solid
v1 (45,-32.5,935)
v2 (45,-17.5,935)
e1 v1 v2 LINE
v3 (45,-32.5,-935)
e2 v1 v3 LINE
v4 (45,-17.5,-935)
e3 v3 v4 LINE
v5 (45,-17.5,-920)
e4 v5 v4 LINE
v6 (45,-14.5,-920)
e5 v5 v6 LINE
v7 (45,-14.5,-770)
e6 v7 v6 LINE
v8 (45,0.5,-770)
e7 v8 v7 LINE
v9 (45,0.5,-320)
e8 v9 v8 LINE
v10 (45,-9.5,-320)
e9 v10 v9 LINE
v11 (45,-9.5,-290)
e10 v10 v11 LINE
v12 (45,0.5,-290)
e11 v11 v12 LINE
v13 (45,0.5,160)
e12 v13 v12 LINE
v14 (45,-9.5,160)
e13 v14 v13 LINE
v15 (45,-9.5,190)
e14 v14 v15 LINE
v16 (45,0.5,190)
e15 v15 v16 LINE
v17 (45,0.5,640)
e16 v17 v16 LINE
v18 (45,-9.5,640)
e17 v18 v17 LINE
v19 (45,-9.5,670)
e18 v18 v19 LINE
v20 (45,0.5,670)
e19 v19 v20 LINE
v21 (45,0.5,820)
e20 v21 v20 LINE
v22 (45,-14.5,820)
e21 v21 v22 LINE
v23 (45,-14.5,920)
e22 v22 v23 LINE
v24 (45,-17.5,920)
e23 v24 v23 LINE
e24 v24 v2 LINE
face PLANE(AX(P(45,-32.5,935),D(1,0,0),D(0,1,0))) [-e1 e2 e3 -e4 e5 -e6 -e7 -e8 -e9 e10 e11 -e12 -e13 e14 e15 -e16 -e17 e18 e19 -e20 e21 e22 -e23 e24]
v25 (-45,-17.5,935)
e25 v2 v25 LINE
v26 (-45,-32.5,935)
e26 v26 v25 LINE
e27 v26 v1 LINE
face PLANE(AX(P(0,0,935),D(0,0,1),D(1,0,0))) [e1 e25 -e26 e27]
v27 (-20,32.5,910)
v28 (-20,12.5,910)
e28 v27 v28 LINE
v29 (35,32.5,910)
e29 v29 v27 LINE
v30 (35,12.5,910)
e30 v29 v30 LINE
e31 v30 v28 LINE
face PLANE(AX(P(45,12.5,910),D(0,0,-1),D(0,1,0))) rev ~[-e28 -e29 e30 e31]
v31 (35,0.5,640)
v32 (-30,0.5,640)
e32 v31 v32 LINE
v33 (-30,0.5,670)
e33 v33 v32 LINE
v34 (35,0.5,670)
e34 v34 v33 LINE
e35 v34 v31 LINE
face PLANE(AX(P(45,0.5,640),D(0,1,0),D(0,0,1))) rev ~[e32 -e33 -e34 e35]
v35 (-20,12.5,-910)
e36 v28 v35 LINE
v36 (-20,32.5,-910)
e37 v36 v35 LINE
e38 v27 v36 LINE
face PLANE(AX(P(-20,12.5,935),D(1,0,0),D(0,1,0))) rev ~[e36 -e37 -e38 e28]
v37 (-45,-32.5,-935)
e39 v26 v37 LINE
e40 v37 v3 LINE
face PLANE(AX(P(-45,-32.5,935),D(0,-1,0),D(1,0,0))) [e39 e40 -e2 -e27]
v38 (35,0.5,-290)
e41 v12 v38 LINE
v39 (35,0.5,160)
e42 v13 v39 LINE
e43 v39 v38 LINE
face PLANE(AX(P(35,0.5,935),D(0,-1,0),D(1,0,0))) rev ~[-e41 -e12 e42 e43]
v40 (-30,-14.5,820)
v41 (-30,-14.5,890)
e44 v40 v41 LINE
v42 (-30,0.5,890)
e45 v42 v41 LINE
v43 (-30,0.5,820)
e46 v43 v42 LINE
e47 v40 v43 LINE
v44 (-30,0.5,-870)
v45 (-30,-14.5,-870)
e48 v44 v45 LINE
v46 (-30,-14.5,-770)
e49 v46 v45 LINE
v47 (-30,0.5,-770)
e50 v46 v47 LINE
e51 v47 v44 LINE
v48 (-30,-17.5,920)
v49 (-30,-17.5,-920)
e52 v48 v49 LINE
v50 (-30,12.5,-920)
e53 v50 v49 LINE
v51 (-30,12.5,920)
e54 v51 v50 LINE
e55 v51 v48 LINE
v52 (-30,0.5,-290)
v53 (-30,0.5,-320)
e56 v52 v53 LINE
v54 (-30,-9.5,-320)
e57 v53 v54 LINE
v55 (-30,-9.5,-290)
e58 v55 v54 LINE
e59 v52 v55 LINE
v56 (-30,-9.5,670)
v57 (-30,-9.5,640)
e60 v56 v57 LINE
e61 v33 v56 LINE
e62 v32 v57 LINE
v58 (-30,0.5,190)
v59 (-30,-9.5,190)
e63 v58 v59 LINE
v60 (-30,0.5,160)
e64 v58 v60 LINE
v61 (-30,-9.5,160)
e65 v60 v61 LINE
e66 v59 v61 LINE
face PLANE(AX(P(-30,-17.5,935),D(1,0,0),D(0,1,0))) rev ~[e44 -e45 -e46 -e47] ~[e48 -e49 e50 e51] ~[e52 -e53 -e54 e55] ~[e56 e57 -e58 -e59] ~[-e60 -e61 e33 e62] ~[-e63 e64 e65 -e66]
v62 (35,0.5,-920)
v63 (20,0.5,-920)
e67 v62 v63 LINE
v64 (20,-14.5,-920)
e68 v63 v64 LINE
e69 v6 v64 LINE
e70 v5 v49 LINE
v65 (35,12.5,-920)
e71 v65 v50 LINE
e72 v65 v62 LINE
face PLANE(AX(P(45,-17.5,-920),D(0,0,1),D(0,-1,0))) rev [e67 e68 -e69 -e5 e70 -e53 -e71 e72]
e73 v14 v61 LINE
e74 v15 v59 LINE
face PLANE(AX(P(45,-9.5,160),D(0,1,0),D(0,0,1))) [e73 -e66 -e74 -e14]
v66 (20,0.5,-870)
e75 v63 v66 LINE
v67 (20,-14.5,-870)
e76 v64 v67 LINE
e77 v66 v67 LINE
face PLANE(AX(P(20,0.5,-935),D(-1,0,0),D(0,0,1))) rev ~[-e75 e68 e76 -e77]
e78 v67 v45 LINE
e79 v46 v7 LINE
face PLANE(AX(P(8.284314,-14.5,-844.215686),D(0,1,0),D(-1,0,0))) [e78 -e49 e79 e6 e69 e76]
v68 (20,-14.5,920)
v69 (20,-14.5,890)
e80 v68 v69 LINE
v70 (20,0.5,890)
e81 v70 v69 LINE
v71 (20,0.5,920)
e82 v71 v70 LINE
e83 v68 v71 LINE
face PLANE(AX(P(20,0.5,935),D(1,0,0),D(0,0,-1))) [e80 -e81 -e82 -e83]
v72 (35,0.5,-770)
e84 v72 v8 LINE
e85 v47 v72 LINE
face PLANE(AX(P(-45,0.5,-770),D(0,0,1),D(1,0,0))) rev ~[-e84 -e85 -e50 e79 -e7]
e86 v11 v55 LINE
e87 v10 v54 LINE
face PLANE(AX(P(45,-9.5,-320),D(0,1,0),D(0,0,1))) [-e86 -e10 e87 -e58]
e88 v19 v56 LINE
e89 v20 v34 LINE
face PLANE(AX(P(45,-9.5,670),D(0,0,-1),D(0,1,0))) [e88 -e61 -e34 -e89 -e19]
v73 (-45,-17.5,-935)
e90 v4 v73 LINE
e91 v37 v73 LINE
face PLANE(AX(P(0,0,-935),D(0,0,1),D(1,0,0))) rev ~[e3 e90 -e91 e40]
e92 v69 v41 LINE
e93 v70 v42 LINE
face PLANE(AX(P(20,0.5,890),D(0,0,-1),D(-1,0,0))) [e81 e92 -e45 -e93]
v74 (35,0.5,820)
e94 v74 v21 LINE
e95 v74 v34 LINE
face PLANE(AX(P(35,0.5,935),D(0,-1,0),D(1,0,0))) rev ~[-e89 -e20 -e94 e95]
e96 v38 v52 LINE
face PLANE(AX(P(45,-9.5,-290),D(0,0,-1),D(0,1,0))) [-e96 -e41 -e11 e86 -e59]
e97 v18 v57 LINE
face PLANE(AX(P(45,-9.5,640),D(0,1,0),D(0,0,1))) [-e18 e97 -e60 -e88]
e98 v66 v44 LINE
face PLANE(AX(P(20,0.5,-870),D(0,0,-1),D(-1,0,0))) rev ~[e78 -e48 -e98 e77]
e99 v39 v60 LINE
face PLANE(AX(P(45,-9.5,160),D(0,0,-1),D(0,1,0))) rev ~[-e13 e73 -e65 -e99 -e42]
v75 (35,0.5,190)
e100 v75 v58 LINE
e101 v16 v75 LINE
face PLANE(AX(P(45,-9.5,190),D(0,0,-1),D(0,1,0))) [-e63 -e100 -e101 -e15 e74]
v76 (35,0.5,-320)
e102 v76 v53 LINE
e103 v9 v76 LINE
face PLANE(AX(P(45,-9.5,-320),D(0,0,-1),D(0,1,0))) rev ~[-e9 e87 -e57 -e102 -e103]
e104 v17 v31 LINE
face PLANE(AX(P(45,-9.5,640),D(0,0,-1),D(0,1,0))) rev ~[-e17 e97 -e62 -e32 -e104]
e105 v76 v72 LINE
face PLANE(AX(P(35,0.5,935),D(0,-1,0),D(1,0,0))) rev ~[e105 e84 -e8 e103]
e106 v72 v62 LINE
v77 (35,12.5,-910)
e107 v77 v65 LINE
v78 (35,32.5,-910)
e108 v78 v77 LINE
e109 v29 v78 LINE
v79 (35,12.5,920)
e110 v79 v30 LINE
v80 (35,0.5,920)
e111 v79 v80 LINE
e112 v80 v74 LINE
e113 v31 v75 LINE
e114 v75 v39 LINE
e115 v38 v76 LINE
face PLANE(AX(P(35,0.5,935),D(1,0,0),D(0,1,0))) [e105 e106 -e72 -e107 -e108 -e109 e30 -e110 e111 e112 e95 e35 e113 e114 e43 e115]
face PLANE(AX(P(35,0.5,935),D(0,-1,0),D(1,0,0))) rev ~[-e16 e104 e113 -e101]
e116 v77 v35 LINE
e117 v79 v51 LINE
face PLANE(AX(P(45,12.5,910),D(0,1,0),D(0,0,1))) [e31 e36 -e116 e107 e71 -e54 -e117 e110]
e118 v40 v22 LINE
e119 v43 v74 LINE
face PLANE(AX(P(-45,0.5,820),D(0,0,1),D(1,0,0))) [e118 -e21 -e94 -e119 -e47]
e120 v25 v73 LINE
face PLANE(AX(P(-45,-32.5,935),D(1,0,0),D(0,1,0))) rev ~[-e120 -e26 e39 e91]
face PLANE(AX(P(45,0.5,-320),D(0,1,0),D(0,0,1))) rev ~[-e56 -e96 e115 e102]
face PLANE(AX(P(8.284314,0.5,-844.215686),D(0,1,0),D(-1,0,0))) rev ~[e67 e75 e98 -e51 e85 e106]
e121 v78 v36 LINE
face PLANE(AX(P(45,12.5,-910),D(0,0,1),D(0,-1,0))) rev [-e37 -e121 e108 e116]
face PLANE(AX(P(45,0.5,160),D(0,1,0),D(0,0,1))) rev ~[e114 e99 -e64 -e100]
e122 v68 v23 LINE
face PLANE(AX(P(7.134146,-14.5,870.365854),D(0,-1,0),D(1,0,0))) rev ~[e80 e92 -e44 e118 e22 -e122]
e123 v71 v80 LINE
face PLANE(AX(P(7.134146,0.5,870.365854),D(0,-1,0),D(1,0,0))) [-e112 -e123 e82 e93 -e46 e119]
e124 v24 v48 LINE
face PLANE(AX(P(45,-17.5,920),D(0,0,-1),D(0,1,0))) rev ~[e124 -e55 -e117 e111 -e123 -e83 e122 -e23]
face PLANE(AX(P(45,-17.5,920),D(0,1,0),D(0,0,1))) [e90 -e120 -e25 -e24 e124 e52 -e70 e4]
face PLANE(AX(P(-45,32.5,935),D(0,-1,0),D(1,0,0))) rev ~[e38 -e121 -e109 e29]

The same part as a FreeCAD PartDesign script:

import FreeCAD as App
import Part
import Sketcher
Q = App.Units.Quantity


def add_polygon(sketch, points):
    """Adds a closed chain of lines whose ends are joined by coincident constraints."""
    first, n = sketch.GeometryCount, len(points)
    for a, b in zip(points, points[1:] + points[:1]):
        sketch.addGeometry(Part.LineSegment(App.Vector(*a, 0), App.Vector(*b, 0)), False)
    for i in range(n):
        sketch.addConstraint(Sketcher.Constraint("Coincident", first + i, 2, first + (i + 1) % n, 1))

doc = App.newDocument("Part")
body = doc.addObject("PartDesign::Body", "Body")

# Sketch on XY plane
sketch1 = body.newObject("Sketcher::SketchObject", "Sketch")
sketch1.AttachmentSupport = (doc.getObject("XY_Plane"), [""])
sketch1.MapMode = "FlatFace"
sketch1.AttachmentOffset = App.Placement(App.Vector(0, 0, 935), App.Rotation())
add_polygon(sketch1, [(-45, 32), (-45, -32), (45, -32), (45, 32)])  # lines 0-3
sketch1.addConstraint([
    Sketcher.Constraint("Vertical", 0),
    Sketcher.Constraint("Horizontal", 1),
    Sketcher.Constraint("Vertical", 2),
    Sketcher.Constraint("Horizontal", 3),
    Sketcher.Constraint("Symmetric", 0, 2, 2, 2, -1, 1),
    Sketcher.Constraint("DistanceX", 1, 1, 1, 2, Q("90 mm")),
    Sketcher.Constraint("DistanceY", 0, 2, 0, 1, Q("65 mm")),
])
pad1 = body.newObject("PartDesign::Pad", "Pad")
pad1.Profile = sketch1
pad1.Length = 1870
pad1.Reversed = True

# Sketch on XZ plane
sketch2 = body.newObject("Sketcher::SketchObject", "Sketch001")
sketch2.AttachmentSupport = (doc.getObject("XZ_Plane"), [""])
sketch2.MapMode = "FlatFace"
sketch2.AttachmentOffset = App.Placement(App.Vector(0, 0, -0.5), App.Rotation())
add_polygon(sketch2, [(20, 935), (45, 935), (45, 820), (-45, 820), (-45, 890), (20, 890)])  # lines 0-5
sketch2.addConstraint([
    Sketcher.Constraint("Horizontal", 0),
    Sketcher.Constraint("Vertical", 1),
    Sketcher.Constraint("Horizontal", 2),
    Sketcher.Constraint("Vertical", 3),
    Sketcher.Constraint("Horizontal", 4),
    Sketcher.Constraint("Vertical", 5),
    Sketcher.Constraint("DistanceX", 0, 1, 0, 2, Q("25 mm")),
    Sketcher.Constraint("DistanceX", 2, 2, 2, 1, Q("90 mm")),
    Sketcher.Constraint("DistanceY", 1, 2, 1, 1, Q("115 mm")),
    Sketcher.Constraint("DistanceY", 3, 1, 3, 2, Q("70 mm")),
    Sketcher.Constraint("DistanceX", -1, 1, 0, 2, Q("45 mm")),
    Sketcher.Constraint("DistanceY", -1, 1, 0, 2, Q("935 mm")),
])
pocket1 = body.newObject("PartDesign::Pocket", "Pocket")
pocket1.Profile = sketch2
pocket1.Length = 15
pocket1.Reversed = True

# Sketch on XZ plane
sketch3 = body.newObject("Sketcher::SketchObject", "Sketch002")
sketch3.AttachmentSupport = (doc.getObject("XZ_Plane"), [""])
sketch3.MapMode = "FlatFace"
sketch3.AttachmentOffset = App.Placement(App.Vector(0, 0, -0.5), App.Rotation())
add_polygon(sketch3, [(-45, -770), (45, -770), (45, -935), (20, -935), (20, -870), (-45, -870)])  # lines 0-5
sketch3.addConstraint([
    Sketcher.Constraint("Horizontal", 0),
    Sketcher.Constraint("Vertical", 1),
    Sketcher.Constraint("Horizontal", 2),
    Sketcher.Constraint("Vertical", 3),
    Sketcher.Constraint("Horizontal", 4),
    Sketcher.Constraint("Vertical", 5),
    Sketcher.Constraint("Equal", 4, 3),
    Sketcher.Constraint("DistanceX", 0, 1, 0, 2, Q("90 mm")),
    Sketcher.Constraint("DistanceX", 2, 2, 2, 1, Q("25 mm")),
    Sketcher.Constraint("DistanceY", 1, 2, 1, 1, Q("165 mm")),
    Sketcher.Constraint("DistanceX", -1, 1, 0, 2, Q("45 mm")),
    Sketcher.Constraint("DistanceY", 0, 2, -1, 1, Q("770 mm")),
])
pocket2 = body.newObject("PartDesign::Pocket", "Pocket001")
pocket2.Profile = sketch3
pocket2.Length = 15
pocket2.Reversed = True

# Sketch on YZ plane
sketch4 = body.newObject("Sketcher::SketchObject", "Sketch003")
sketch4.AttachmentSupport = (doc.getObject("YZ_Plane"), [""])
sketch4.MapMode = "FlatFace"
sketch4.AttachmentOffset = App.Placement(App.Vector(0, 0, 45), App.Rotation())
add_polygon(sketch4, [(-10, -290), (-10, -320), (0, -320), (0, -290)])  # lines 0-3
add_polygon(sketch4, [(-10, 190), (-10, 160), (0, 160), (0, 190)])  # lines 4-7
add_polygon(sketch4, [(-10, 670), (-10, 640), (0, 640), (0, 670)])  # lines 8-11
sketch4.addConstraint([
    Sketcher.Constraint("Vertical", 0),
    Sketcher.Constraint("Horizontal", 1),
    Sketcher.Constraint("Vertical", 2),
    Sketcher.Constraint("Horizontal", 3),
    Sketcher.Constraint("Vertical", 4),
    Sketcher.Constraint("Horizontal", 5),
    Sketcher.Constraint("Vertical", 6),
    Sketcher.Constraint("Horizontal", 7),
    Sketcher.Constraint("Vertical", 8),
    Sketcher.Constraint("Horizontal", 9),
    Sketcher.Constraint("Vertical", 10),
    Sketcher.Constraint("Horizontal", 11),
    Sketcher.Constraint("Vertical", 3, 2, 4, 2),
    Sketcher.Constraint("Vertical", 2, 2, 5, 2),
    Sketcher.Constraint("Vertical", 7, 2, 8, 2),
    Sketcher.Constraint("Vertical", 6, 2, 9, 2),
    Sketcher.Constraint("Equal", 2, 4),
    Sketcher.Constraint("Equal", 6, 8),
    Sketcher.Constraint("DistanceX", 1, 1, 1, 2, Q("10 mm")),
    Sketcher.Constraint("DistanceY", 0, 2, 0, 1, Q("30 mm")),
    Sketcher.Constraint("DistanceY", 0, 2, -1, 1, Q("320 mm")),
    Sketcher.Constraint("DistanceY", -1, 1, 4, 2, Q("160 mm")),
    Sketcher.Constraint("DistanceY", -1, 1, 8, 2, Q("640 mm")),
    Sketcher.Constraint("DistanceX", 0, 2, -1, 1, Q("9.5 mm")),
])
pocket3 = body.newObject("PartDesign::Pocket", "Pocket002")
pocket3.Profile = sketch4
pocket3.Type = "ThroughAll"

# Sketch on YZ plane
sketch5 = body.newObject("Sketcher::SketchObject", "Sketch004")
sketch5.AttachmentSupport = (doc.getObject("YZ_Plane"), [""])
sketch5.MapMode = "FlatFace"
sketch5.AttachmentOffset = App.Placement(App.Vector(0, 0, 45), App.Rotation())
add_polygon(sketch5, [(12, 935), (12, 910), (32, 910), (32, 935)])  # lines 0-3
sketch5.addConstraint([
    Sketcher.Constraint("Vertical", 0),
    Sketcher.Constraint("Horizontal", 1),
    Sketcher.Constraint("Vertical", 2),
    Sketcher.Constraint("Horizontal", 3),
    Sketcher.Constraint("DistanceX", 1, 1, 1, 2, Q("20 mm")),
    Sketcher.Constraint("DistanceY", 0, 2, 0, 1, Q("25 mm")),
    Sketcher.Constraint("DistanceY", -1, 1, 0, 2, Q("910 mm")),
    Sketcher.Constraint("DistanceX", -1, 1, 0, 2, Q("12.5 mm")),
])
pocket4 = body.newObject("PartDesign::Pocket", "Pocket003")
pocket4.Profile = sketch5
pocket4.Type = "ThroughAll"

# Sketch on YZ plane
sketch6 = body.newObject("Sketcher::SketchObject", "Sketch005")
sketch6.AttachmentSupport = (doc.getObject("YZ_Plane"), [""])
sketch6.MapMode = "FlatFace"
sketch6.AttachmentOffset = App.Placement(App.Vector(0, 0, 45), App.Rotation())
add_polygon(sketch6, [(-18, 935), (-18, 920), (32, 920), (32, 935)])  # lines 0-3
sketch6.addConstraint([
    Sketcher.Constraint("Vertical", 0),
    Sketcher.Constraint("Horizontal", 1),
    Sketcher.Constraint("Vertical", 2),
    Sketcher.Constraint("Horizontal", 3),
    Sketcher.Constraint("DistanceX", 1, 1, 1, 2, Q("50 mm")),
    Sketcher.Constraint("DistanceY", 0, 2, 0, 1, Q("15 mm")),
    Sketcher.Constraint("DistanceY", -1, 1, 0, 2, Q("920 mm")),
    Sketcher.Constraint("DistanceX", 0, 2, -1, 1, Q("17.5 mm")),
])
pocket5 = body.newObject("PartDesign::Pocket", "Pocket004")
pocket5.Profile = sketch6
pocket5.Type = "ThroughAll"
doc.recompute()

mirrored = body.newObject("PartDesign::Mirrored", "Mirrored")
mirrored.Originals = [pocket4, pocket5]
mirrored.MirrorPlane = (doc.getObject("XY_Plane"), [""])
body.Tip = mirrored

# Sketch on XY plane
sketch7 = body.newObject("Sketcher::SketchObject", "Sketch006")
sketch7.AttachmentSupport = (doc.getObject("XY_Plane"), [""])
sketch7.MapMode = "FlatFace"
sketch7.AttachmentOffset = App.Placement(App.Vector(0, 0, 935), App.Rotation())
add_polygon(sketch7, [(-45, 32), (-45, 12), (-20, 12), (-20, 32)])  # lines 0-3
sketch7.addConstraint([
    Sketcher.Constraint("Vertical", 0),
    Sketcher.Constraint("Horizontal", 1),
    Sketcher.Constraint("Vertical", 2),
    Sketcher.Constraint("Horizontal", 3),
    Sketcher.Constraint("DistanceX", 1, 1, 1, 2, Q("25 mm")),
    Sketcher.Constraint("DistanceY", 0, 2, 0, 1, Q("20 mm")),
    Sketcher.Constraint("DistanceX", 0, 2, -1, 1, Q("45 mm")),
    Sketcher.Constraint("DistanceY", -1, 1, 0, 2, Q("12.5 mm")),
])
pocket6 = body.newObject("PartDesign::Pocket", "Pocket005")
pocket6.Profile = sketch7
pocket6.Type = "ThroughAll"

# Sketch on XY plane
sketch8 = body.newObject("Sketcher::SketchObject", "Sketch007")
sketch8.AttachmentSupport = (doc.getObject("XY_Plane"), [""])
sketch8.MapMode = "FlatFace"
sketch8.AttachmentOffset = App.Placement(App.Vector(0, 0, 935), App.Rotation())
add_polygon(sketch8, [(-45, 32), (-45, -18), (-30, -18), (-30, 32)])  # lines 0-3
sketch8.addConstraint([
    Sketcher.Constraint("Vertical", 0),
    Sketcher.Constraint("Horizontal", 1),
    Sketcher.Constraint("Vertical", 2),
    Sketcher.Constraint("Horizontal", 3),
    Sketcher.Constraint("DistanceX", 1, 1, 1, 2, Q("15 mm")),
    Sketcher.Constraint("DistanceY", 0, 2, 0, 1, Q("50 mm")),
    Sketcher.Constraint("DistanceX", 0, 2, -1, 1, Q("45 mm")),
    Sketcher.Constraint("DistanceY", 0, 2, -1, 1, Q("17.5 mm")),
])
pocket7 = body.newObject("PartDesign::Pocket", "Pocket006")
pocket7.Profile = sketch8
pocket7.Type = "ThroughAll"

# Sketch on XY plane
sketch9 = body.newObject("Sketcher::SketchObject", "Sketch008")
sketch9.AttachmentSupport = (doc.getObject("XY_Plane"), [""])
sketch9.MapMode = "FlatFace"
sketch9.AttachmentOffset = App.Placement(App.Vector(0, 0, 935), App.Rotation())
add_polygon(sketch9, [(35, 32), (35, 0), (45, 0), (45, 32)])  # lines 0-3
sketch9.addConstraint([
    Sketcher.Constraint("Vertical", 0),
    Sketcher.Constraint("Horizontal", 1),
    Sketcher.Constraint("Vertical", 2),
    Sketcher.Constraint("Horizontal", 3),
    Sketcher.Constraint("DistanceX", 1, 1, 1, 2, Q("10 mm")),
    Sketcher.Constraint("DistanceY", 0, 2, 0, 1, Q("32 mm")),
    Sketcher.Constraint("DistanceX", -1, 1, 0, 2, Q("35 mm")),
    Sketcher.Constraint("DistanceY", -1, 1, 0, 2, Q("0.5 mm")),
])
pocket8 = body.newObject("PartDesign::Pocket", "Pocket007")
pocket8.Profile = sketch9
pocket8.Type = "ThroughAll"

doc.recompute()
